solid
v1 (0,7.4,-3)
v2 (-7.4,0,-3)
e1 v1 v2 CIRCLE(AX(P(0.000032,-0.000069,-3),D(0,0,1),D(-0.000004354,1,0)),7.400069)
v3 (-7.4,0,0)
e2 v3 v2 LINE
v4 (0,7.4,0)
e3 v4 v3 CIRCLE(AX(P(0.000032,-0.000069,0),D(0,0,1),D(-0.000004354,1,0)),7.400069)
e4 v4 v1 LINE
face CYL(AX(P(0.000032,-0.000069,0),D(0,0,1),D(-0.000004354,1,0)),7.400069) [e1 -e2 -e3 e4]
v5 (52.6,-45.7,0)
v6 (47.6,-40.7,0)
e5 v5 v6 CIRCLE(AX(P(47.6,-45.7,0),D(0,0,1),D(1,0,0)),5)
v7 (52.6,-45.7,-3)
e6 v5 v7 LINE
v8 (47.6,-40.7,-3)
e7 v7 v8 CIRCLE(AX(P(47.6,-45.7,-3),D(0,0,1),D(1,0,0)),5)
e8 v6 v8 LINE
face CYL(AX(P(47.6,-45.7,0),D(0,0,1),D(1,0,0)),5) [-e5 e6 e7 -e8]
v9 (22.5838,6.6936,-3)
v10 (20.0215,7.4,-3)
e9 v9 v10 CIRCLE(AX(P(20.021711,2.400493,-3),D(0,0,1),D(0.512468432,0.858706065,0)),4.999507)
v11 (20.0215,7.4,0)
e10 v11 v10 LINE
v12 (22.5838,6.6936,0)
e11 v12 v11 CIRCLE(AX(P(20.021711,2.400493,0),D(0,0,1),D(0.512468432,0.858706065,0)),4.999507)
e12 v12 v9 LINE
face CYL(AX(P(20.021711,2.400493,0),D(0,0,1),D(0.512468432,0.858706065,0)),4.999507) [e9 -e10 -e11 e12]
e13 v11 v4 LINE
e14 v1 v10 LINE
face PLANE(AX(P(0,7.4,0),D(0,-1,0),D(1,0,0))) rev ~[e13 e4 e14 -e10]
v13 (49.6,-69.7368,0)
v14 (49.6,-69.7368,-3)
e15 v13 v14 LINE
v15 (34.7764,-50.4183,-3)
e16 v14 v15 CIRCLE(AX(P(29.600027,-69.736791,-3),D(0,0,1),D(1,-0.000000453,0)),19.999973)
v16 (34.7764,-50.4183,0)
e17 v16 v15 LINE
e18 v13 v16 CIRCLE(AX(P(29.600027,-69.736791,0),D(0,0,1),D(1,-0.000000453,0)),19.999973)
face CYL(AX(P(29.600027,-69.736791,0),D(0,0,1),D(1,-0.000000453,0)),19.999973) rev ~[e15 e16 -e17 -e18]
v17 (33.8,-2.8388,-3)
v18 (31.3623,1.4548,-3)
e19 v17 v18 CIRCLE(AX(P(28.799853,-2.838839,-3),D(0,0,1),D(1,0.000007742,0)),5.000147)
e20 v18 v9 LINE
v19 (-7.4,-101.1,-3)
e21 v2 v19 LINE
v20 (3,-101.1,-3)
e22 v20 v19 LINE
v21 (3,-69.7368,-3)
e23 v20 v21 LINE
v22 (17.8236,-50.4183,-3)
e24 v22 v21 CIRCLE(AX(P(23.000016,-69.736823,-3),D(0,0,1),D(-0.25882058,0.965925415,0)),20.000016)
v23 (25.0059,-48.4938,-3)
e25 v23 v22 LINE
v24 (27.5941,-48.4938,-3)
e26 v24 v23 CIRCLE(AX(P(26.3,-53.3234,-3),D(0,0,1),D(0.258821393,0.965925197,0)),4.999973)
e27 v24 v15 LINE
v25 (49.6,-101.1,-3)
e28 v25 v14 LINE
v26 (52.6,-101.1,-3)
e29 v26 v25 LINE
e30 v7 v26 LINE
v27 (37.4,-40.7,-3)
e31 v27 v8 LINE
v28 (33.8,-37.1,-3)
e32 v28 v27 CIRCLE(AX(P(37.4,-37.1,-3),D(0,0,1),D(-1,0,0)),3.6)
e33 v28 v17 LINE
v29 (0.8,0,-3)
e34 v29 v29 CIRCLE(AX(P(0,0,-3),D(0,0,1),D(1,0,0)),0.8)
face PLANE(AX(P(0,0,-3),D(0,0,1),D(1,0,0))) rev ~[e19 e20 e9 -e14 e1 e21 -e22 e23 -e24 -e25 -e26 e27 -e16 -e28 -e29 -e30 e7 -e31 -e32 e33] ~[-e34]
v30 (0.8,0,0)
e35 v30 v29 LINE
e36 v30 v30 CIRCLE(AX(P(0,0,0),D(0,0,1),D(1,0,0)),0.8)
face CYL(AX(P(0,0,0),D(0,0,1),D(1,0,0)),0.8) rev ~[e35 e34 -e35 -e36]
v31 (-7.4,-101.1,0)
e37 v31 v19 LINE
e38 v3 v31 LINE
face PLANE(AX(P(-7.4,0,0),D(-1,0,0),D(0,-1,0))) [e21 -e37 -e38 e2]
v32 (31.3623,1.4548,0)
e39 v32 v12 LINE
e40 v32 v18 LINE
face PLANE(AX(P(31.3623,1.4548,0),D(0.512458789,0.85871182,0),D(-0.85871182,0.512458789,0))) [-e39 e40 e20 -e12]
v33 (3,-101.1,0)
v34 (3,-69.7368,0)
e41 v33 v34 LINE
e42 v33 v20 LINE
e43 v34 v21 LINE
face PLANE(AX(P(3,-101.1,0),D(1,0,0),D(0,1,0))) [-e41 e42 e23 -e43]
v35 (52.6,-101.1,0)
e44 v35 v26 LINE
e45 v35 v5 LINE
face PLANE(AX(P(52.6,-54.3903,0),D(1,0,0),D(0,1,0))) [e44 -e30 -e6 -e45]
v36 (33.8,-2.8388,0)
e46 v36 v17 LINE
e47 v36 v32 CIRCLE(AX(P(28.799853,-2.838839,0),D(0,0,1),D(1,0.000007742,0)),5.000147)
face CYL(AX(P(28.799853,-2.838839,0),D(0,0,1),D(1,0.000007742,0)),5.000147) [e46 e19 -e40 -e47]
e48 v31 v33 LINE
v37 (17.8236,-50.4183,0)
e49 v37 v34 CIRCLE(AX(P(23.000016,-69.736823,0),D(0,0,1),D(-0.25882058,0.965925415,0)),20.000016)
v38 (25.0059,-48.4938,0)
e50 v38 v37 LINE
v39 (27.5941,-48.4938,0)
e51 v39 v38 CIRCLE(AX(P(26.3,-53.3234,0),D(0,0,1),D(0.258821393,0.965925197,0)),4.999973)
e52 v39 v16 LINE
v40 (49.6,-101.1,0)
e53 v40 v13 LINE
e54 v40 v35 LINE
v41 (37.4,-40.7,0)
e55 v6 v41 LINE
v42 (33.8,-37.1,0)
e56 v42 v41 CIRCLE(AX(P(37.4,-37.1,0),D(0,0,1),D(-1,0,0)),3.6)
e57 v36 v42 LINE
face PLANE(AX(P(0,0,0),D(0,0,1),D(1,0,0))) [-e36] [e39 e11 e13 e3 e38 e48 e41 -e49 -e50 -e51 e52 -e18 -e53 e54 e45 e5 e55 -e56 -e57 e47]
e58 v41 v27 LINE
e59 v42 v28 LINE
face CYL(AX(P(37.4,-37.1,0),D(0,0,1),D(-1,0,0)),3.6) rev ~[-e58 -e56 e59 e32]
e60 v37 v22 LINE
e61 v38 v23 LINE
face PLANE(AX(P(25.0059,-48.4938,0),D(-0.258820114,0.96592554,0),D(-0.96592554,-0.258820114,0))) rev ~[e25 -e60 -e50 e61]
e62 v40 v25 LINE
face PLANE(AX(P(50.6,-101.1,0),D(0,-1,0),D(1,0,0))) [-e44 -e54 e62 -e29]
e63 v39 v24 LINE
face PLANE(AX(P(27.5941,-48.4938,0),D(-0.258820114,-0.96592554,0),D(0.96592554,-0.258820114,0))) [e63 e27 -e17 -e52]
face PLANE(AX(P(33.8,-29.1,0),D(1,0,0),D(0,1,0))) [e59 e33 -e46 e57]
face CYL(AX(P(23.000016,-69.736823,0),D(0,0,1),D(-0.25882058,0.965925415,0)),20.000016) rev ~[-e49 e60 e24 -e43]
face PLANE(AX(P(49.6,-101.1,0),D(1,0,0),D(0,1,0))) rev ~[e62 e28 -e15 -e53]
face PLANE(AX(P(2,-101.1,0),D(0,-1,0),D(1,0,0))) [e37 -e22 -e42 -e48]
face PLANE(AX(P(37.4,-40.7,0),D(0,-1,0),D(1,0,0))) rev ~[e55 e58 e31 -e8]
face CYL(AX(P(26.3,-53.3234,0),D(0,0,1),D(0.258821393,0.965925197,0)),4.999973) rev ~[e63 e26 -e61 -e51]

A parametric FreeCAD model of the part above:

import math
import FreeCAD as App
import Part
import Sketcher
from FreeCAD import Vector
Q = App.Units.Quantity

doc = App.newDocument("Part")
body = doc.addObject("PartDesign::Body", "Body")

# Sketch on XY plane
sketch1 = body.newObject("Sketcher::SketchObject", "Sketch")
sketch1.AttachmentSupport = (doc.getObject("XY_Plane"), [""])
sketch1.MapMode = "FlatFace"
sketch1.addGeometry(Part.ArcOfCircle(Part.Circle(Vector(28.8, -2.8, 0), Vector(0, 0, 1), 5), math.radians(0), math.radians(59)), False)
sketch1.addGeometry(Part.LineSegment(Vector(31.4, 1.5, 0), Vector(22.6, 6.7, 0)), False)
sketch1.addGeometry(Part.ArcOfCircle(Part.Circle(Vector(20, 2.4, 0), Vector(0, 0, 1), 5), math.radians(59), math.radians(90)), False)
sketch1.addGeometry(Part.LineSegment(Vector(20, 7.4, 0), Vector(0, 7.4, 0)), False)
sketch1.addGeometry(Part.ArcOfCircle(Part.Circle(Vector(0, 0, 0), Vector(0, 0, 1), 7.4), math.radians(90), math.radians(180)), False)
sketch1.addGeometry(Part.LineSegment(Vector(-7.4, 0, 0), Vector(-7.4, -101.1, 0)), False)
sketch1.addGeometry(Part.LineSegment(Vector(-7.4, -101.1, 0), Vector(3, -101.1, 0)), False)
sketch1.addGeometry(Part.LineSegment(Vector(3, -101.1, 0), Vector(3, -69.7, 0)), False)
sketch1.addGeometry(Part.ArcOfCircle(Part.Circle(Vector(23, -69.7, 0), Vector(0, 0, 1), 20), math.radians(105), math.radians(180)), False)
sketch1.addGeometry(Part.LineSegment(Vector(17.8, -50.4, 0), Vector(25, -48.5, 0)), False)
sketch1.addGeometry(Part.ArcOfCircle(Part.Circle(Vector(26.3, -53.3, 0), Vector(0, 0, 1), 5), math.radians(75), math.radians(105)), False)
sketch1.addGeometry(Part.LineSegment(Vector(27.6, -48.5, 0), Vector(34.8, -50.4, 0)), False)
sketch1.addGeometry(Part.ArcOfCircle(Part.Circle(Vector(29.6, -69.7, 0), Vector(0, 0, 1), 20), math.radians(0), math.radians(75)), False)
sketch1.addGeometry(Part.LineSegment(Vector(49.6, -69.7, 0), Vector(49.6, -101.1, 0)), False)
sketch1.addGeometry(Part.LineSegment(Vector(49.6, -101.1, 0), Vector(52.6, -101.1, 0)), False)
sketch1.addGeometry(Part.LineSegment(Vector(52.6, -101.1, 0), Vector(52.6, -45.7, 0)), False)
sketch1.addGeometry(Part.ArcOfCircle(Part.Circle(Vector(47.6, -45.7, 0), Vector(0, 0, 1), 5), math.radians(0), math.radians(90)), False)
sketch1.addGeometry(Part.LineSegment(Vector(47.6, -40.7, 0), Vector(37.4, -40.7, 0)), False)
sketch1.addGeometry(Part.ArcOfCircle(Part.Circle(Vector(37.4, -37.1, 0), Vector(0, 0, 1), 3.6), math.radians(180), math.radians(270)), False)
sketch1.addGeometry(Part.LineSegment(Vector(33.8, -37.1, 0), Vector(33.8, -2.8, 0)), False)
sketch1.addGeometry(Part.Circle(Vector(0, 0, 0), Vector(0, 0, 1), 0.8), False)
sketch1.addConstraint(Sketcher.Constraint("Tangent", 0, 2, 1, 1))
sketch1.addConstraint(Sketcher.Constraint("Tangent", 1, 2, 2, 1))
sketch1.addConstraint(Sketcher.Constraint("Tangent", 2, 2, 3, 1))
sketch1.addConstraint(Sketcher.Constraint("Tangent", 3, 2, 4, 1))
sketch1.addConstraint(Sketcher.Constraint("Tangent", 4, 2, 5, 1))
sketch1.addConstraint(Sketcher.Constraint("Coincident", 5, 2, 6, 1))
sketch1.addConstraint(Sketcher.Constraint("Coincident", 6, 2, 7, 1))
sketch1.addConstraint(Sketcher.Constraint("Tangent", 7, 2, 8, 2))
sketch1.addConstraint(Sketcher.Constraint("Tangent", 8, 1, 9, 1))
sketch1.addConstraint(Sketcher.Constraint("Tangent", 9, 2, 10, 2))
sketch1.addConstraint(Sketcher.Constraint("Tangent", 10, 1, 11, 1))
sketch1.addConstraint(Sketcher.Constraint("Tangent", 11, 2, 12, 2))
sketch1.addConstraint(Sketcher.Constraint("Tangent", 12, 1, 13, 1))
sketch1.addConstraint(Sketcher.Constraint("Coincident", 13, 2, 14, 1))
sketch1.addConstraint(Sketcher.Constraint("Coincident", 14, 2, 15, 1))
sketch1.addConstraint(Sketcher.Constraint("Tangent", 15, 2, 16, 1))
sketch1.addConstraint(Sketcher.Constraint("Tangent", 16, 2, 17, 1))
sketch1.addConstraint(Sketcher.Constraint("Tangent", 17, 2, 18, 2))
sketch1.addConstraint(Sketcher.Constraint("Tangent", 18, 1, 19, 1))
sketch1.addConstraint(Sketcher.Constraint("Tangent", 19, 2, 0, 1))
sketch1.addConstraint(Sketcher.Constraint("Horizontal", 3))
sketch1.addConstraint(Sketcher.Constraint("Vertical", 5))
sketch1.addConstraint(Sketcher.Constraint("Horizontal", 6))
sketch1.addConstraint(Sketcher.Constraint("Vertical", 7))
sketch1.addConstraint(Sketcher.Constraint("Vertical", 13))
sketch1.addConstraint(Sketcher.Constraint("Horizontal", 14))
sketch1.addConstraint(Sketcher.Constraint("Vertical", 15))
sketch1.addConstraint(Sketcher.Constraint("Horizontal", 17))
sketch1.addConstraint(Sketcher.Constraint("Vertical", 19))
sketch1.addConstraint(Sketcher.Constraint("Coincident", 4, 3, -1, 1))
sketch1.addConstraint(Sketcher.Constraint("Coincident", 20, 3, -1, 1))
sketch1.addConstraint(Sketcher.Constraint("Equal", 0, 2))
sketch1.addConstraint(Sketcher.Constraint("Equal", 2, 10))
sketch1.addConstraint(Sketcher.Constraint("Equal", 8, 12))
sketch1.addConstraint(Sketcher.Constraint("Equal", 10, 16))
sketch1.addConstraint(Sketcher.Constraint("Horizontal", 8, 3, 12, 3))
sketch1.addConstraint(Sketcher.Constraint("Horizontal", 9, 2, 10, 1))
sketch1.addConstraint(Sketcher.Constraint("Horizontal", 6, 2, 13, 2))
sketch1.addConstraint(Sketcher.Constraint("Radius", 0, 5.0))
sketch1.addConstraint(Sketcher.Constraint("Radius", 8, 20.0))
sketch1.addConstraint(Sketcher.Constraint("Diameter", 20, 1.6))
sketch1.addConstraint(Sketcher.Constraint("Radius", 4, 7.4))
sketch1.addConstraint(Sketcher.Constraint("Radius", 18, 3.6))
sketch1.addConstraint(Sketcher.Constraint("DistanceX", 14, 1, 14, 2, 3.0))
sketch1.addConstraint(Sketcher.Constraint("Angle", 9, Q("15 deg")))
sketch1.addConstraint(Sketcher.Constraint("DistanceX", 6, 1, 6, 2, 10.4))
sketch1.addConstraint(Sketcher.Constraint("DistanceX", 17, 2, 17, 1, 10.2))
sketch1.addConstraint(Sketcher.Constraint("DistanceY", 5, 2, 5, 1, 101.1))
sketch1.addConstraint(Sketcher.Constraint("DistanceY", 15, 1, 15, 2, 55.4))
sketch1.addConstraint(Sketcher.Constraint("DistanceX", 5, 2, 12, 3, 37.0))
sketch1.addConstraint(Sketcher.Constraint("DistanceX", 3, 2, 3, 1, 20.0215))
sketch1.addConstraint(Sketcher.Constraint("DistanceY", 7, 1, 7, 2, 31.3632))
sketch1.addConstraint(Sketcher.Constraint("DistanceY", 19, 1, 19, 2, 34.2612))
pad1 = body.newObject("PartDesign::Pad", "Pad")
pad1.Profile = sketch1
pad1.Length = 3
pad1.Reversed = True

doc.recompute()
